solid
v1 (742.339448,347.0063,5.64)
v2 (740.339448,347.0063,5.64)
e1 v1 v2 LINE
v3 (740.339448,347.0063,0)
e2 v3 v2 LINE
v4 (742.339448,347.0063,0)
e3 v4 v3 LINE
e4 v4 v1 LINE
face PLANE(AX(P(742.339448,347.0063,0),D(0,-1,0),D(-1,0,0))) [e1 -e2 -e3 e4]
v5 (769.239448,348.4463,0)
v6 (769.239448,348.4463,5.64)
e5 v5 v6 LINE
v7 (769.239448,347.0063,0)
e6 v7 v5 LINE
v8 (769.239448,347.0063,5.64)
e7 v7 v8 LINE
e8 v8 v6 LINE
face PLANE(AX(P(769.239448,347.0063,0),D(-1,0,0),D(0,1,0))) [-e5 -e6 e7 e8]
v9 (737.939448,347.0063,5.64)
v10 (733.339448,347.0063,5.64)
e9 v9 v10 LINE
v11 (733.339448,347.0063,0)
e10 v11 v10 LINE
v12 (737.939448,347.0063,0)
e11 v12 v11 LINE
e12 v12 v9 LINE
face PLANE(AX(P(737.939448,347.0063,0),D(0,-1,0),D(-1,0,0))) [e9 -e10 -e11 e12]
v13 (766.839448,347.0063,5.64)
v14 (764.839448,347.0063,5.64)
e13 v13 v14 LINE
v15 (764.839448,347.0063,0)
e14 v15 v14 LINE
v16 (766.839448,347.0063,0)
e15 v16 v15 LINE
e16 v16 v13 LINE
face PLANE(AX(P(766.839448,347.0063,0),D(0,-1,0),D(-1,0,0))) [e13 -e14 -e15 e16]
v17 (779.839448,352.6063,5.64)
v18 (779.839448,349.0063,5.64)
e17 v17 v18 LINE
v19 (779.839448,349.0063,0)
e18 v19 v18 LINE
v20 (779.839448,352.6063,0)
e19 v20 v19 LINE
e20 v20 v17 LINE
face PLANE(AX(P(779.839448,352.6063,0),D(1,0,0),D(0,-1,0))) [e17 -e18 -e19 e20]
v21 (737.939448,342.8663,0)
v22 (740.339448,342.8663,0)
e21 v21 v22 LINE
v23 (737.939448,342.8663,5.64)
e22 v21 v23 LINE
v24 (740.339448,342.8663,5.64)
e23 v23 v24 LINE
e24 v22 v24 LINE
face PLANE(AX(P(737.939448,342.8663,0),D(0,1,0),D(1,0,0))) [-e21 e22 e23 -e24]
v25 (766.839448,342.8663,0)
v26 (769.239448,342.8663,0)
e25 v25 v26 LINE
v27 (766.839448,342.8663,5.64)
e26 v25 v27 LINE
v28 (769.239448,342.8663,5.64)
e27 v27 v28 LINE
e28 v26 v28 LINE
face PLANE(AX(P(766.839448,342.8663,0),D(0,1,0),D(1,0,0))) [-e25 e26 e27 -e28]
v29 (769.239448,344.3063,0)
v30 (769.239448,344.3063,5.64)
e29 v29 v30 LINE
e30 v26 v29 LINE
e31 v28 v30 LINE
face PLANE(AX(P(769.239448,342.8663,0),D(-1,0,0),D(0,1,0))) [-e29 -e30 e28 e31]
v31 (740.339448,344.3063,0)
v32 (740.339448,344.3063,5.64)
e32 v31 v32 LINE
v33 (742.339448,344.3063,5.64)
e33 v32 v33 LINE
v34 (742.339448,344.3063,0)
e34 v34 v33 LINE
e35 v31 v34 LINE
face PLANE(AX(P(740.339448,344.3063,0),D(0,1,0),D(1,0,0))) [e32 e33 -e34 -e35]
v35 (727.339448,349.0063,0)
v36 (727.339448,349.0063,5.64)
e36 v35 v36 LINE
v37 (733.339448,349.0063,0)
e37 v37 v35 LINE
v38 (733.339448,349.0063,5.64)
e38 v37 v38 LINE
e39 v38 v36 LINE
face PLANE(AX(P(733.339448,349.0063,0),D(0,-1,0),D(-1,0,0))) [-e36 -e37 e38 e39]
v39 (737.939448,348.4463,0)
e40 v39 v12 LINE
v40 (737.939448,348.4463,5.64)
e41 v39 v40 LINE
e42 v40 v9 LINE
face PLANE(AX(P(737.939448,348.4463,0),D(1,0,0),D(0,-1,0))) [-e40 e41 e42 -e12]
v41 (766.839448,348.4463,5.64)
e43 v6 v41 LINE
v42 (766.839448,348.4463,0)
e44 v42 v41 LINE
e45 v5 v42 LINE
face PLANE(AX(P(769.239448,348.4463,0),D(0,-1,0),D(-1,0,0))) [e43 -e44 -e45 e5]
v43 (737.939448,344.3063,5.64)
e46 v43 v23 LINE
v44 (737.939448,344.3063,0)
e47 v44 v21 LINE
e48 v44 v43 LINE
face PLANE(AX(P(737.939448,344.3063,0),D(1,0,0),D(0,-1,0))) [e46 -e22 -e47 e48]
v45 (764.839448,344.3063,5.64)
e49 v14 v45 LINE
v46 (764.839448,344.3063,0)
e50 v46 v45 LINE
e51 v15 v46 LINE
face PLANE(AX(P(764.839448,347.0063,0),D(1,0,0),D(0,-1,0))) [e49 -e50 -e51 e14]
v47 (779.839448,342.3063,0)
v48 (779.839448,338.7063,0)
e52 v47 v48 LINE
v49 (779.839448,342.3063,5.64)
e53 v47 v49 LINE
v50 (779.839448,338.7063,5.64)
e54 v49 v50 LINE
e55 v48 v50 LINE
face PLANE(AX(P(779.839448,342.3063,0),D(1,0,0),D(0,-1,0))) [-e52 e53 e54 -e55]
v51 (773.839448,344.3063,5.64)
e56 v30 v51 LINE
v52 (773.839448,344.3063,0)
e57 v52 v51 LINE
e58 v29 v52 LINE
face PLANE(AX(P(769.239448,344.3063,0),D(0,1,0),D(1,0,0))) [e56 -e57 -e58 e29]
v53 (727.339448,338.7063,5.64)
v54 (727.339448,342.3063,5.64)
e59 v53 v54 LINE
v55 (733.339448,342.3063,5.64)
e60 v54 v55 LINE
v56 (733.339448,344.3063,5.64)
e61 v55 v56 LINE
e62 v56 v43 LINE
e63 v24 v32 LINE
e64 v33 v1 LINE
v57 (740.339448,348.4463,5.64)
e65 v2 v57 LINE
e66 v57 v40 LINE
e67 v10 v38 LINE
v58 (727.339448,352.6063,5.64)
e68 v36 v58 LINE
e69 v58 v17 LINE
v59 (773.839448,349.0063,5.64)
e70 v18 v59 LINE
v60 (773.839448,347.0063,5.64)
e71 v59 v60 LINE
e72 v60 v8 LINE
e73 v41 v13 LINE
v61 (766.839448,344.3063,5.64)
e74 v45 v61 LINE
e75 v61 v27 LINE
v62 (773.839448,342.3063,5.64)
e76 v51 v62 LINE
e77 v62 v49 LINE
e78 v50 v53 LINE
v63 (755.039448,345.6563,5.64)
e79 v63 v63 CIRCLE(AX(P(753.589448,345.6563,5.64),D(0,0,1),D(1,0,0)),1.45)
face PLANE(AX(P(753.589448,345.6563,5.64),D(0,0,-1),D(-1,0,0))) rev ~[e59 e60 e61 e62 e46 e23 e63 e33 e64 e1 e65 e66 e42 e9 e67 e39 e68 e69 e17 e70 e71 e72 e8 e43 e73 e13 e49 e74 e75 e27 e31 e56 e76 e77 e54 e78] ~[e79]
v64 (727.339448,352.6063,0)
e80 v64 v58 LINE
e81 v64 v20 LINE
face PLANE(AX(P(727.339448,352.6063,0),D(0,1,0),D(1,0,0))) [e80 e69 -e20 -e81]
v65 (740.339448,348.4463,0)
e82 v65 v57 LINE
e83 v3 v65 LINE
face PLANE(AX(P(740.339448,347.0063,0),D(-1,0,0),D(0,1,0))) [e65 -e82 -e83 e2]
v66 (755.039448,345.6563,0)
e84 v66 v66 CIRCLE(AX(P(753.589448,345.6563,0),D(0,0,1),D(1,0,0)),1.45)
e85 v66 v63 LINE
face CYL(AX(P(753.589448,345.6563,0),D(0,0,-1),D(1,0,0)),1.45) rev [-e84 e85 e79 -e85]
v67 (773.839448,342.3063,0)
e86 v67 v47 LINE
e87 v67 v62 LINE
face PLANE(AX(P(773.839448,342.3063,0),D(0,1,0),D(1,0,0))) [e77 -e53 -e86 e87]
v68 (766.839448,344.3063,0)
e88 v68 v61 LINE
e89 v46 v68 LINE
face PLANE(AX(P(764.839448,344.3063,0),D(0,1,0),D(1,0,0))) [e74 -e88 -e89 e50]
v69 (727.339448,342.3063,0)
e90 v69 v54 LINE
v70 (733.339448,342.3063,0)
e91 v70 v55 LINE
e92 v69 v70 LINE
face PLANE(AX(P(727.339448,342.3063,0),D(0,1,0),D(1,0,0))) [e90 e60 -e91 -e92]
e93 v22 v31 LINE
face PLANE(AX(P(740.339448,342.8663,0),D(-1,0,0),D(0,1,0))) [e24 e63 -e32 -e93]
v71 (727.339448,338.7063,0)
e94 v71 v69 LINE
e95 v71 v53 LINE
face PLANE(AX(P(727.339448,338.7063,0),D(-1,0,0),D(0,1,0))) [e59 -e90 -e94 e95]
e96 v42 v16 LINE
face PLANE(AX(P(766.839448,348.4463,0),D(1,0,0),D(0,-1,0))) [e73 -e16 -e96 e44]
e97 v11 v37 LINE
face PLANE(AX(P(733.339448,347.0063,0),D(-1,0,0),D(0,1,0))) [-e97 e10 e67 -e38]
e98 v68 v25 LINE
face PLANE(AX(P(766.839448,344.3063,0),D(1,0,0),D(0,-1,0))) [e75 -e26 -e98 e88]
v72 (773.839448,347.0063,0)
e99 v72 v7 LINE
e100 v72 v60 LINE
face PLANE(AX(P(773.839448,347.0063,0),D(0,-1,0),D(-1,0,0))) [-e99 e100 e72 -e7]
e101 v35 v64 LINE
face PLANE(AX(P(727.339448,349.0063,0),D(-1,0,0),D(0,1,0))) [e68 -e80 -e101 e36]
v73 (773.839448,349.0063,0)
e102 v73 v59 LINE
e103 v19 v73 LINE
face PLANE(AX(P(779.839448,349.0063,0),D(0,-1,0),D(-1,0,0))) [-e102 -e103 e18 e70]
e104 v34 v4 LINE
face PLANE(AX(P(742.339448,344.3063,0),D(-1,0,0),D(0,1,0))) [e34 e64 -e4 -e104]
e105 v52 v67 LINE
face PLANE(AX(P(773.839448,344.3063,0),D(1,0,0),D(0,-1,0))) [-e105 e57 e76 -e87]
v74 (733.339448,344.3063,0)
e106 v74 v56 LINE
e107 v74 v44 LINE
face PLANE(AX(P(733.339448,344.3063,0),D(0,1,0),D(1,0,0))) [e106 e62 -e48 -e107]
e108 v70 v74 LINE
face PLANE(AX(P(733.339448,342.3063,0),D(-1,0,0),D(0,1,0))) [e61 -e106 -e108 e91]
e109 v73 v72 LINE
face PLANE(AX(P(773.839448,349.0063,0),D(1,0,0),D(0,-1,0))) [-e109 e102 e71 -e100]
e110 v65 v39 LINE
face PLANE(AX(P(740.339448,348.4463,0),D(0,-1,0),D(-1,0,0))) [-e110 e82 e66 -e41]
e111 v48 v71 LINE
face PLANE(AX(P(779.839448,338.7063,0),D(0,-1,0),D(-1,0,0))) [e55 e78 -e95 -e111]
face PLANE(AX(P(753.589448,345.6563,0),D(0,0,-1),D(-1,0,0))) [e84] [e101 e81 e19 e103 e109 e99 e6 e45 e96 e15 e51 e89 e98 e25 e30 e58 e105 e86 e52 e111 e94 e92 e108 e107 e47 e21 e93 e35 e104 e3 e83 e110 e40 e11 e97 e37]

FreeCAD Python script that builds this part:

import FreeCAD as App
import Part
import Sketcher

doc = App.newDocument("Part")
params = doc.addObject("Spreadsheet::Sheet", "Params")
for row, (alias, value) in enumerate([
    ("sketch1_diameter", "2.9 mm"),
    ("sketch1_width", "6 mm"),
    ("sketch1_width2", "2 mm"),
    ("sketch1_width3", "52.5 mm"),
    ("sketch1_width4", "4.6 mm"),
    ("pad1_length", "5.64 mm"),
], start=1):
    params.set(f"A{row}", alias)
    params.set(f"B{row}", "=" + value)
    params.setAlias(f"B{row}", alias)

body = doc.addObject("PartDesign::Body", "Body")

# Sketch on XY plane
sketch1 = body.newObject("Sketcher::SketchObject", "Sketch")
sketch1.AttachmentSupport = (doc.getObject("XY_Plane"), [""])
sketch1.MapMode = "FlatFace"
sketch1.addGeometry([
    Part.LineSegment(App.Vector(779.8, 352.6, 0), App.Vector(727.3, 352.6, 0)),  # 0
    Part.LineSegment(App.Vector(727.3, 352.6, 0), App.Vector(727.3, 349, 0)),  # 1
    Part.LineSegment(App.Vector(727.3, 349, 0), App.Vector(733.3, 349, 0)),  # 2
    Part.LineSegment(App.Vector(733.3, 349, 0), App.Vector(733.3, 347, 0)),  # 3
    Part.LineSegment(App.Vector(733.3, 347, 0), App.Vector(737.9, 347, 0)),  # 4
    Part.LineSegment(App.Vector(737.9, 347, 0), App.Vector(737.9, 348.4, 0)),  # 5
    Part.LineSegment(App.Vector(737.9, 348.4, 0), App.Vector(740.3, 348.4, 0)),  # 6
    Part.LineSegment(App.Vector(740.3, 348.4, 0), App.Vector(740.3, 347, 0)),  # 7
    Part.LineSegment(App.Vector(740.3, 347, 0), App.Vector(742.3, 347, 0)),  # 8
    Part.LineSegment(App.Vector(742.3, 347, 0), App.Vector(742.3, 344.3, 0)),  # 9
    Part.LineSegment(App.Vector(742.3, 344.3, 0), App.Vector(740.3, 344.3, 0)),  # 10
    Part.LineSegment(App.Vector(740.3, 344.3, 0), App.Vector(740.3, 342.9, 0)),  # 11
    Part.LineSegment(App.Vector(740.3, 342.9, 0), App.Vector(737.9, 342.9, 0)),  # 12
    Part.LineSegment(App.Vector(737.9, 342.9, 0), App.Vector(737.9, 344.3, 0)),  # 13
    Part.LineSegment(App.Vector(737.9, 344.3, 0), App.Vector(733.3, 344.3, 0)),  # 14
    Part.LineSegment(App.Vector(733.3, 344.3, 0), App.Vector(733.3, 342.3, 0)),  # 15
    Part.LineSegment(App.Vector(733.3, 342.3, 0), App.Vector(727.3, 342.3, 0)),  # 16
    Part.LineSegment(App.Vector(727.3, 342.3, 0), App.Vector(727.3, 338.7, 0)),  # 17
    Part.LineSegment(App.Vector(727.3, 338.7, 0), App.Vector(779.8, 338.7, 0)),  # 18
    Part.LineSegment(App.Vector(779.8, 338.7, 0), App.Vector(779.8, 342.3, 0)),  # 19
    Part.LineSegment(App.Vector(779.8, 342.3, 0), App.Vector(773.8, 342.3, 0)),  # 20
    Part.LineSegment(App.Vector(773.8, 342.3, 0), App.Vector(773.8, 344.3, 0)),  # 21
    Part.LineSegment(App.Vector(773.8, 344.3, 0), App.Vector(769.2, 344.3, 0)),  # 22
    Part.LineSegment(App.Vector(769.2, 344.3, 0), App.Vector(769.2, 342.9, 0)),  # 23
    Part.LineSegment(App.Vector(769.2, 342.9, 0), App.Vector(766.8, 342.9, 0)),  # 24
    Part.LineSegment(App.Vector(766.8, 342.9, 0), App.Vector(766.8, 344.3, 0)),  # 25
    Part.LineSegment(App.Vector(766.8, 344.3, 0), App.Vector(764.8, 344.3, 0)),  # 26
    Part.LineSegment(App.Vector(764.8, 344.3, 0), App.Vector(764.8, 347, 0)),  # 27
    Part.LineSegment(App.Vector(764.8, 347, 0), App.Vector(766.8, 347, 0)),  # 28
    Part.LineSegment(App.Vector(766.8, 347, 0), App.Vector(766.8, 348.4, 0)),  # 29
    Part.LineSegment(App.Vector(766.8, 348.4, 0), App.Vector(769.2, 348.4, 0)),  # 30
    Part.LineSegment(App.Vector(769.2, 348.4, 0), App.Vector(769.2, 347, 0)),  # 31
    Part.LineSegment(App.Vector(769.2, 347, 0), App.Vector(773.8, 347, 0)),  # 32
    Part.LineSegment(App.Vector(773.8, 347, 0), App.Vector(773.8, 349, 0)),  # 33
    Part.LineSegment(App.Vector(773.8, 349, 0), App.Vector(779.8, 349, 0)),  # 34
    Part.LineSegment(App.Vector(779.8, 349, 0), App.Vector(779.8, 352.6, 0)),  # 35
    Part.Circle(App.Vector(753.6, 345.7, 0), App.Vector(0, 0, 1), 1.4),  # 36
], False)
sketch1.addConstraint([
    Sketcher.Constraint("Coincident", 0, 2, 1, 1),
    Sketcher.Constraint("Coincident", 1, 2, 2, 1),
    Sketcher.Constraint("Coincident", 2, 2, 3, 1),
    Sketcher.Constraint("Coincident", 3, 2, 4, 1),
    Sketcher.Constraint("Coincident", 4, 2, 5, 1),
    Sketcher.Constraint("Coincident", 5, 2, 6, 1),
    Sketcher.Constraint("Coincident", 6, 2, 7, 1),
    Sketcher.Constraint("Coincident", 7, 2, 8, 1),
    Sketcher.Constraint("Coincident", 8, 2, 9, 1),
    Sketcher.Constraint("Coincident", 9, 2, 10, 1),
    Sketcher.Constraint("Coincident", 10, 2, 11, 1),
    Sketcher.Constraint("Coincident", 11, 2, 12, 1),
    Sketcher.Constraint("Coincident", 12, 2, 13, 1),
    Sketcher.Constraint("Coincident", 13, 2, 14, 1),
    Sketcher.Constraint("Coincident", 14, 2, 15, 1),
    Sketcher.Constraint("Coincident", 15, 2, 16, 1),
    Sketcher.Constraint("Coincident", 16, 2, 17, 1),
    Sketcher.Constraint("Coincident", 17, 2, 18, 1),
    Sketcher.Constraint("Coincident", 18, 2, 19, 1),
    Sketcher.Constraint("Coincident", 19, 2, 20, 1),
    Sketcher.Constraint("Coincident", 20, 2, 21, 1),
    Sketcher.Constraint("Coincident", 21, 2, 22, 1),
    Sketcher.Constraint("Coincident", 22, 2, 23, 1),
    Sketcher.Constraint("Coincident", 23, 2, 24, 1),
    Sketcher.Constraint("Coincident", 24, 2, 25, 1),
    Sketcher.Constraint("Coincident", 25, 2, 26, 1),
    Sketcher.Constraint("Coincident", 26, 2, 27, 1),
    Sketcher.Constraint("Coincident", 27, 2, 28, 1),
    Sketcher.Constraint("Coincident", 28, 2, 29, 1),
    Sketcher.Constraint("Coincident", 29, 2, 30, 1),
    Sketcher.Constraint("Coincident", 30, 2, 31, 1),
    Sketcher.Constraint("Coincident", 31, 2, 32, 1),
    Sketcher.Constraint("Coincident", 32, 2, 33, 1),
    Sketcher.Constraint("Coincident", 33, 2, 34, 1),
    Sketcher.Constraint("Coincident", 34, 2, 35, 1),
    Sketcher.Constraint("Coincident", 35, 2, 0, 1),
    Sketcher.Constraint("Horizontal", 0),
    Sketcher.Constraint("Vertical", 1),
    Sketcher.Constraint("Horizontal", 2),
    Sketcher.Constraint("Vertical", 3),
    Sketcher.Constraint("Horizontal", 4),
    Sketcher.Constraint("Vertical", 5),
    Sketcher.Constraint("Horizontal", 6),
    Sketcher.Constraint("Vertical", 7),
    Sketcher.Constraint("Horizontal", 8),
    Sketcher.Constraint("Vertical", 9),
    Sketcher.Constraint("Horizontal", 10),
    Sketcher.Constraint("Vertical", 11),
    Sketcher.Constraint("Horizontal", 12),
    Sketcher.Constraint("Vertical", 13),
    Sketcher.Constraint("Horizontal", 14),
    Sketcher.Constraint("Vertical", 15),
    Sketcher.Constraint("Horizontal", 16),
    Sketcher.Constraint("Vertical", 17),
    Sketcher.Constraint("Horizontal", 18),
    Sketcher.Constraint("Vertical", 19),
    Sketcher.Constraint("Horizontal", 20),
    Sketcher.Constraint("Vertical", 21),
    Sketcher.Constraint("Horizontal", 22),
    Sketcher.Constraint("Vertical", 23),
    Sketcher.Constraint("Horizontal", 24),
    Sketcher.Constraint("Vertical", 25),
    Sketcher.Constraint("Horizontal", 26),
    Sketcher.Constraint("Vertical", 27),
    Sketcher.Constraint("Horizontal", 28),
    Sketcher.Constraint("Vertical", 29),
    Sketcher.Constraint("Horizontal", 30),
    Sketcher.Constraint("Vertical", 31),
    Sketcher.Constraint("Horizontal", 32),
    Sketcher.Constraint("Vertical", 33),
    Sketcher.Constraint("Horizontal", 34),
    Sketcher.Constraint("Vertical", 35),
    Sketcher.Constraint("Horizontal", 4, 2, 7, 2),
    Sketcher.Constraint("Horizontal", 10, 2, 13, 2),
    Sketcher.Constraint("Horizontal", 16, 2, 19, 2),
    Sketcher.Constraint("Horizontal", 14, 2, 21, 2),
    Sketcher.Constraint("Horizontal", 12, 2, 23, 2),
    Sketcher.Constraint("Horizontal", 22, 2, 25, 2),
    Sketcher.Constraint("Horizontal", 8, 2, 27, 2),
    Sketcher.Constraint("Horizontal", 6, 2, 29, 2),
    Sketcher.Constraint("Horizontal", 28, 2, 31, 2),
    Sketcher.Constraint("Horizontal", 2, 2, 33, 2),
    Sketcher.Constraint("Vertical", 7, 2, 10, 2),
    Sketcher.Constraint("Vertical", 5, 2, 12, 2),
    Sketcher.Constraint("Vertical", 3, 2, 14, 2),
    Sketcher.Constraint("Vertical", 1, 2, 16, 2),
    Sketcher.Constraint("Vertical", 25, 2, 28, 2),
    Sketcher.Constraint("Vertical", 23, 2, 30, 2),
    Sketcher.Constraint("Vertical", 21, 2, 32, 2),
    Sketcher.Constraint("Vertical", 19, 2, 34, 2),
    Sketcher.Constraint("Equal", 16, 20),
    Sketcher.Constraint("Equal", 14, 22),
    Sketcher.Constraint("Equal", 12, 24),
    Sketcher.Constraint("Equal", 10, 26),
    Sketcher.Constraint("Equal", 28, 3),
    Sketcher.Constraint("Equal", 7, 11),
    Sketcher.Constraint("Equal", 3, 15),
    Sketcher.Constraint("Equal", 1, 17),
    Sketcher.Constraint("Diameter", 36, 2.9),
    Sketcher.Constraint("DistanceX", 2, 1, 2, 2, 6.0),
    Sketcher.Constraint("DistanceX", 8, 1, 8, 2, 2.0),
    Sketcher.Constraint("DistanceX", 0, 2, 0, 1, 52.5),
    Sketcher.Constraint("DistanceX", 4, 1, 4, 2, 4.6),
    Sketcher.Constraint("DistanceX", 6, 1, 6, 2, 2.4),
    Sketcher.Constraint("DistanceY", 1, 2, 1, 1, 3.6),
    Sketcher.Constraint("DistanceY", 9, 2, 9, 1, 2.7),
    Sketcher.Constraint("DistanceY", 5, 1, 5, 2, 1.44),
    Sketcher.Constraint("DistanceX", 0, 2, 36, 3, 26.25),
    Sketcher.Constraint("DistanceY", 36, 3, 0, 2, 6.95),
    Sketcher.Constraint("DistanceY", -1, 1, 36, 3, 345.6563),
    Sketcher.Constraint("DistanceX", -1, 1, 36, 3, 753.589448),
])
sketch1.setExpression("Constraints[98]", "Params.sketch1_diameter")
sketch1.setExpression("Constraints[99]", "Params.sketch1_width")
sketch1.setExpression("Constraints[100]", "Params.sketch1_width2")
sketch1.setExpression("Constraints[101]", "Params.sketch1_width3")
sketch1.setExpression("Constraints[102]", "Params.sketch1_width4")
pad1 = body.newObject("PartDesign::Pad", "Pad")
pad1.Profile = sketch1
pad1.setExpression("Length", "Params.pad1_length")

doc.recompute()
